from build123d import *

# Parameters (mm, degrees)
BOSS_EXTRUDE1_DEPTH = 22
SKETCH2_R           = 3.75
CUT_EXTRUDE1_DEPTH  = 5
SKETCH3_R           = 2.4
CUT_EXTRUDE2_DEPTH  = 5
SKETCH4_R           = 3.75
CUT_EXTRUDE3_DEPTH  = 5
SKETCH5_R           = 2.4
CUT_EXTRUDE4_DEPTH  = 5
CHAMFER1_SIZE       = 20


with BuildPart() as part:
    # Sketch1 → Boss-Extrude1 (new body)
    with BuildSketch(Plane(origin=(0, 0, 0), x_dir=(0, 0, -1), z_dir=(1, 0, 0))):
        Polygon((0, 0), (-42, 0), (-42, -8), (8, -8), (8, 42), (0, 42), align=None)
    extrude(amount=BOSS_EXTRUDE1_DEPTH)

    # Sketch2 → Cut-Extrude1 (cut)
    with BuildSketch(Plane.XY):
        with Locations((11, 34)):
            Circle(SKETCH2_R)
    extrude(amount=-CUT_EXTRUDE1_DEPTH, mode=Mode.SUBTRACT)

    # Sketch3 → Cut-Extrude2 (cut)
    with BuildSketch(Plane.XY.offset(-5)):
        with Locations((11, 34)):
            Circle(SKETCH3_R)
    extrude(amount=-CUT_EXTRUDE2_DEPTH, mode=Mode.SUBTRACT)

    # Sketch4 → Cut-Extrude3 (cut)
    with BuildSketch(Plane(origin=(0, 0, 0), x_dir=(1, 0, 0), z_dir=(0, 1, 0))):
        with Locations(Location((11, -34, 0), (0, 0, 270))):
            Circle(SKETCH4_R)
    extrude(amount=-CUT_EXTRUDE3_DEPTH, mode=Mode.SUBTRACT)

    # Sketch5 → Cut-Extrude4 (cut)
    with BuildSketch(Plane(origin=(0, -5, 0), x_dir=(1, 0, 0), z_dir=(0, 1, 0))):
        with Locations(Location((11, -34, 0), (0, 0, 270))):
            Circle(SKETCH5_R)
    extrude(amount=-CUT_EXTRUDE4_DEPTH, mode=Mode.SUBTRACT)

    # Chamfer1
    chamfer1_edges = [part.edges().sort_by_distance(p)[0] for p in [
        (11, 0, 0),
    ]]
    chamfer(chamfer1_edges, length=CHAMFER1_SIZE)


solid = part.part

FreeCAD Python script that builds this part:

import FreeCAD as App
import Part
import Sketcher

V = App.Vector
Q = App.Units.Quantity


def edges_at(feature, points):
    """Names of the edges that pass closest to the given points."""
    edges = feature.Shape.Edges
    near = lambda p: min(range(len(edges)), key=lambda i: edges[i].distToShape(Part.Vertex(*p))[0])
    return sorted({f"Edge{near(p) + 1}" for p in points})

doc = App.newDocument("Part")
body = doc.addObject("PartDesign::Body", "Body")

sketch1 = body.newObject("Sketcher::SketchObject", "Sketch")
sketch1.AttachmentSupport = (doc.getObject("YZ_Plane"), [""])
sketch1.MapMode = "FlatFace"
sketch1.addGeometry([
    Part.LineSegment(V(0, 0, 0), V(0, 42, 0)),
    Part.LineSegment(V(0, 42, 0), V(-8, 42, 0)),
    Part.LineSegment(V(-8, 42, 0), V(-8, -8, 0)),
    Part.LineSegment(V(-8, -8, 0), V(42, -8, 0)),
    Part.LineSegment(V(42, -8, 0), V(42, 0, 0)),
    Part.LineSegment(V(42, 0, 0), V(0, 0, 0)),
], False)
sketch1.addConstraint([
    Sketcher.Constraint("Coincident", 0, 2, 1, 1),
    Sketcher.Constraint("Coincident", 1, 2, 2, 1),
    Sketcher.Constraint("Coincident", 2, 2, 3, 1),
    Sketcher.Constraint("Coincident", 3, 2, 4, 1),
    Sketcher.Constraint("Coincident", 4, 2, 5, 1),
    Sketcher.Constraint("Coincident", 5, 2, 0, 1),
    Sketcher.Constraint("Vertical", 0),
    Sketcher.Constraint("Horizontal", 1),
    Sketcher.Constraint("Vertical", 2),
    Sketcher.Constraint("Horizontal", 3),
    Sketcher.Constraint("Vertical", 4),
    Sketcher.Constraint("Horizontal", 5),
    Sketcher.Constraint("Coincident", 5, 2, -1, 1),
    Sketcher.Constraint("Equal", 5, 0),
    Sketcher.Constraint("Equal", 3, 2),
    Sketcher.Constraint("DistanceX", 1, 2, 1, 1, Q("8 mm")),
    Sketcher.Constraint("DistanceX", 3, 1, 3, 2, Q("50 mm")),
])
pad1 = body.newObject("PartDesign::Pad", "Pad")
pad1.Profile = sketch1
pad1.Length = 22

sketch2 = body.newObject("Sketcher::SketchObject", "Sketch001")
sketch2.AttachmentSupport = (doc.getObject("XY_Plane"), [""])
sketch2.MapMode = "FlatFace"
sketch2.addGeometry(Part.Circle(V(11, 34, 0), V(0, 0, 1), 3.75), False)
sketch2.addConstraint([
    Sketcher.Constraint("Diameter", 0, Q("7.5 mm")),
    Sketcher.Constraint("DistanceX", -1, 1, 0, 3, Q("11 mm")),
    Sketcher.Constraint("DistanceY", -1, 1, 0, 3, Q("34 mm")),
])
pocket1 = body.newObject("PartDesign::Pocket", "Pocket")
pocket1.Profile = sketch2
pocket1.Length = 5

sketch3 = body.newObject("Sketcher::SketchObject", "Sketch002")
sketch3.AttachmentSupport = (doc.getObject("XY_Plane"), [""])
sketch3.MapMode = "FlatFace"
sketch3.AttachmentOffset = App.Placement(V(0, 0, -5), App.Rotation())
sketch3.addGeometry(Part.Circle(V(11, 34, 0), V(0, 0, 1), 2.4), False)
sketch3.addConstraint([
    Sketcher.Constraint("Diameter", 0, Q("4.8 mm")),
    Sketcher.Constraint("DistanceX", -1, 1, 0, 3, Q("11 mm")),
    Sketcher.Constraint("DistanceY", -1, 1, 0, 3, Q("34 mm")),
])
pocket2 = body.newObject("PartDesign::Pocket", "Pocket001")
pocket2.Profile = sketch3
pocket2.Length = 5

sketch4 = body.newObject("Sketcher::SketchObject", "Sketch003")
sketch4.AttachmentSupport = (doc.getObject("XZ_Plane"), [""])
sketch4.MapMode = "FlatFace"
sketch4.addGeometry(Part.Circle(V(11, 34, 0), V(0, 0, 1), 3.75), False)
sketch4.addConstraint([
    Sketcher.Constraint("Diameter", 0, Q("7.5 mm")),
    Sketcher.Constraint("DistanceX", -1, 1, 0, 3, Q("11 mm")),
    Sketcher.Constraint("DistanceY", -1, 1, 0, 3, Q("34 mm")),
])
pocket3 = body.newObject("PartDesign::Pocket", "Pocket002")
pocket3.Profile = sketch4
pocket3.Length = 5
pocket3.Reversed = True

sketch5 = body.newObject("Sketcher::SketchObject", "Sketch004")
sketch5.AttachmentSupport = (doc.getObject("XZ_Plane"), [""])
sketch5.MapMode = "FlatFace"
sketch5.AttachmentOffset = App.Placement(V(0, 0, 5), App.Rotation())
sketch5.addGeometry(Part.Circle(V(11, 34, 0), V(0, 0, 1), 2.4), False)
sketch5.addConstraint([
    Sketcher.Constraint("Diameter", 0, Q("4.8 mm")),
    Sketcher.Constraint("DistanceX", -1, 1, 0, 3, Q("11 mm")),
    Sketcher.Constraint("DistanceY", -1, 1, 0, 3, Q("34 mm")),
])
pocket4 = body.newObject("PartDesign::Pocket", "Pocket003")
pocket4.Profile = sketch5
pocket4.Length = 5
pocket4.Reversed = True
doc.recompute()

chamfer = body.newObject("PartDesign::Chamfer", "Chamfer")
chamfer.Base = (pocket4, edges_at(pocket4, [(11, 0, 0)]))
chamfer.Size = 20

doc.recompute()
